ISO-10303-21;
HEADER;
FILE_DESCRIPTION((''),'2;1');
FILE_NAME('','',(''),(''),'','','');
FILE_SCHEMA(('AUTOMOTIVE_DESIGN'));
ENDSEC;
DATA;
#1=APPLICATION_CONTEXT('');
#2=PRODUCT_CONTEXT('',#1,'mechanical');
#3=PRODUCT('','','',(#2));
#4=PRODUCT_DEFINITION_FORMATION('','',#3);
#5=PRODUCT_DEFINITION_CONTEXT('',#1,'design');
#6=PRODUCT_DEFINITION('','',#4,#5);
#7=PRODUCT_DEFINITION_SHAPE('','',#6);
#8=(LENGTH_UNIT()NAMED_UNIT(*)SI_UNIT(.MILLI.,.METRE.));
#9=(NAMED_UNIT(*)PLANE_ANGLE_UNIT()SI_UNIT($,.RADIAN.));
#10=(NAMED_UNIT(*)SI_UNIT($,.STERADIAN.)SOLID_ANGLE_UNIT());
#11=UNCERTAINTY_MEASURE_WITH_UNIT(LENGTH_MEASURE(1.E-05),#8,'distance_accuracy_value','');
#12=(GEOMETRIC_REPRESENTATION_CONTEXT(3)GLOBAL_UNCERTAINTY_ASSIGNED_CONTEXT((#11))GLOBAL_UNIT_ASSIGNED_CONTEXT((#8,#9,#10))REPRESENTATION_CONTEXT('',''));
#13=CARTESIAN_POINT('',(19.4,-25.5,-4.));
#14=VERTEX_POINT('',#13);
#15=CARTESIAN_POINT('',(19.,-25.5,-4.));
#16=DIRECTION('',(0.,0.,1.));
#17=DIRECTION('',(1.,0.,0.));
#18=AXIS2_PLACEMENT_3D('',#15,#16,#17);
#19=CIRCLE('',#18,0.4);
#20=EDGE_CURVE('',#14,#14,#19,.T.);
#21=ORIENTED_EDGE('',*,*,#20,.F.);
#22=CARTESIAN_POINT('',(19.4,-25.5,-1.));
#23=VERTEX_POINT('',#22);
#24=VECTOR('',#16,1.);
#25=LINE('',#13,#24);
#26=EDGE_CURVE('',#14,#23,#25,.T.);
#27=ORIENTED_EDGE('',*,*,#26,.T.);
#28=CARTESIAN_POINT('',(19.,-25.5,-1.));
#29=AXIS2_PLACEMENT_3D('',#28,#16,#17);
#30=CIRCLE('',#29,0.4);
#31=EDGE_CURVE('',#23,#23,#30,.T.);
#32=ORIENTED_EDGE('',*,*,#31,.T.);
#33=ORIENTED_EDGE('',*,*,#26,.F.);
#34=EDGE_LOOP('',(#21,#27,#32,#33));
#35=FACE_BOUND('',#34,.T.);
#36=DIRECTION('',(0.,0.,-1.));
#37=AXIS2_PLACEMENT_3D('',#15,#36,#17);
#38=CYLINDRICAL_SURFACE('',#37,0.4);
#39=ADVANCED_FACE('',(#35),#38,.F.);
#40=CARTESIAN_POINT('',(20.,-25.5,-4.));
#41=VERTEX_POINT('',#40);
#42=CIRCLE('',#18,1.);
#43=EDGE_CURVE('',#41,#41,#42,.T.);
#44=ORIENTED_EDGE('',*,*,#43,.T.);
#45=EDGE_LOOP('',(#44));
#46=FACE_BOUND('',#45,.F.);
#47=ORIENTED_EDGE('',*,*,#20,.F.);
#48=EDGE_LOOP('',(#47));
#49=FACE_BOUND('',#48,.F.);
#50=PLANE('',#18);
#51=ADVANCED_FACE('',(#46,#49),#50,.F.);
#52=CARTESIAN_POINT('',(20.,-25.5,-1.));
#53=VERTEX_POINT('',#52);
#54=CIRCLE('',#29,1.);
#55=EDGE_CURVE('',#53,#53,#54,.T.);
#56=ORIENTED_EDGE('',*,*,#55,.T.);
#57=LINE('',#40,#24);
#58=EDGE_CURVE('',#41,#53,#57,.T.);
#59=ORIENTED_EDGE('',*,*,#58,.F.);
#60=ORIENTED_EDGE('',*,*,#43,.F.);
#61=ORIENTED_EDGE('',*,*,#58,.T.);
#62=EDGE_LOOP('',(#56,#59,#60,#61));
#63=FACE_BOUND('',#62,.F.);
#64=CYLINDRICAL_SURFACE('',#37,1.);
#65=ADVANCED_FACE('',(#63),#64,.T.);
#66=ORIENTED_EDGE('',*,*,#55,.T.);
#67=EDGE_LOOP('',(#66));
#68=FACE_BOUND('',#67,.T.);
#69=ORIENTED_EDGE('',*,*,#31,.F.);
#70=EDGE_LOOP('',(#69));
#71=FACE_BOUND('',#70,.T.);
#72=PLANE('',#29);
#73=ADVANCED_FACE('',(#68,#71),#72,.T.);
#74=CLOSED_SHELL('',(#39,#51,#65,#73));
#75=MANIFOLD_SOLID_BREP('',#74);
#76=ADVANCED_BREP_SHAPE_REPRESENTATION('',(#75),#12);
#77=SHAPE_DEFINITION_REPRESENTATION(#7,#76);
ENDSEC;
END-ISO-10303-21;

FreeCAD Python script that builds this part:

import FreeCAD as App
import Part
import Sketcher

V = App.Vector

doc = App.newDocument("Part")
params = doc.addObject("Spreadsheet::Sheet", "Params")
for row, (alias, value) in enumerate([
    ("sketch1_diameter", "0.8 mm"),
    ("pad1_length", "3 mm"),
    ("sketch2_diameter", "2 mm"),
    ("pad2_length", "3 mm"),
], start=1):
    params.set(f"A{row}", alias)
    params.set(f"B{row}", "=" + value)
    params.setAlias(f"B{row}", alias)

body = doc.addObject("PartDesign::Body", "Body")

# Sketch on XY plane
sketch1 = body.newObject("Sketcher::SketchObject", "Sketch")
sketch1.AttachmentSupport = (doc.getObject("XY_Plane"), [""])
sketch1.MapMode = "FlatFace"
sketch1.AttachmentOffset = App.Placement(V(0, 0, -4), App.Rotation())
sketch1.addGeometry(Part.Circle(V(19, -25.5, 0), V(0, 0, 1), 0.4), False)
sketch1.addConstraint([
    Sketcher.Constraint("Diameter", 0, 0.8),
    Sketcher.Constraint("DistanceX", -1, 1, 0, 3, 19.0),
    Sketcher.Constraint("DistanceY", 0, 3, -1, 1, 25.5),
])
sketch1.setExpression("Constraints[0]", "Params.sketch1_diameter")
pad1 = body.newObject("PartDesign::Pad", "Pad")
pad1.Profile = sketch1
pad1.setExpression("Length", "Params.pad1_length")
body2 = doc.addObject("PartDesign::Body", "Body001")

# Sketch on XY plane
sketch2 = body2.newObject("Sketcher::SketchObject", "Sketch001")
sketch2.AttachmentSupport = (doc.getObject("XY_Plane001"), [""])
sketch2.MapMode = "FlatFace"
sketch2.AttachmentOffset = App.Placement(V(0, 0, -4), App.Rotation())
sketch2.addGeometry(Part.Circle(V(19, -25.5, 0), V(0, 0, 1), 1), False)
sketch2.addConstraint([
    Sketcher.Constraint("Diameter", 0, 2.0),
    Sketcher.Constraint("DistanceX", -1, 1, 0, 3, 19.0),
    Sketcher.Constraint("DistanceY", 0, 3, -1, 1, 25.5),
])
sketch2.setExpression("Constraints[0]", "Params.sketch2_diameter")
pad2 = body2.newObject("PartDesign::Pad", "Pad001")
pad2.Profile = sketch2
pad2.setExpression("Length", "Params.pad2_length")
doc.recompute()

boolean = body2.newObject("PartDesign::Boolean", "Boolean")
boolean.Type = "Cut"
boolean.addObjects([body])

doc.recompute()
